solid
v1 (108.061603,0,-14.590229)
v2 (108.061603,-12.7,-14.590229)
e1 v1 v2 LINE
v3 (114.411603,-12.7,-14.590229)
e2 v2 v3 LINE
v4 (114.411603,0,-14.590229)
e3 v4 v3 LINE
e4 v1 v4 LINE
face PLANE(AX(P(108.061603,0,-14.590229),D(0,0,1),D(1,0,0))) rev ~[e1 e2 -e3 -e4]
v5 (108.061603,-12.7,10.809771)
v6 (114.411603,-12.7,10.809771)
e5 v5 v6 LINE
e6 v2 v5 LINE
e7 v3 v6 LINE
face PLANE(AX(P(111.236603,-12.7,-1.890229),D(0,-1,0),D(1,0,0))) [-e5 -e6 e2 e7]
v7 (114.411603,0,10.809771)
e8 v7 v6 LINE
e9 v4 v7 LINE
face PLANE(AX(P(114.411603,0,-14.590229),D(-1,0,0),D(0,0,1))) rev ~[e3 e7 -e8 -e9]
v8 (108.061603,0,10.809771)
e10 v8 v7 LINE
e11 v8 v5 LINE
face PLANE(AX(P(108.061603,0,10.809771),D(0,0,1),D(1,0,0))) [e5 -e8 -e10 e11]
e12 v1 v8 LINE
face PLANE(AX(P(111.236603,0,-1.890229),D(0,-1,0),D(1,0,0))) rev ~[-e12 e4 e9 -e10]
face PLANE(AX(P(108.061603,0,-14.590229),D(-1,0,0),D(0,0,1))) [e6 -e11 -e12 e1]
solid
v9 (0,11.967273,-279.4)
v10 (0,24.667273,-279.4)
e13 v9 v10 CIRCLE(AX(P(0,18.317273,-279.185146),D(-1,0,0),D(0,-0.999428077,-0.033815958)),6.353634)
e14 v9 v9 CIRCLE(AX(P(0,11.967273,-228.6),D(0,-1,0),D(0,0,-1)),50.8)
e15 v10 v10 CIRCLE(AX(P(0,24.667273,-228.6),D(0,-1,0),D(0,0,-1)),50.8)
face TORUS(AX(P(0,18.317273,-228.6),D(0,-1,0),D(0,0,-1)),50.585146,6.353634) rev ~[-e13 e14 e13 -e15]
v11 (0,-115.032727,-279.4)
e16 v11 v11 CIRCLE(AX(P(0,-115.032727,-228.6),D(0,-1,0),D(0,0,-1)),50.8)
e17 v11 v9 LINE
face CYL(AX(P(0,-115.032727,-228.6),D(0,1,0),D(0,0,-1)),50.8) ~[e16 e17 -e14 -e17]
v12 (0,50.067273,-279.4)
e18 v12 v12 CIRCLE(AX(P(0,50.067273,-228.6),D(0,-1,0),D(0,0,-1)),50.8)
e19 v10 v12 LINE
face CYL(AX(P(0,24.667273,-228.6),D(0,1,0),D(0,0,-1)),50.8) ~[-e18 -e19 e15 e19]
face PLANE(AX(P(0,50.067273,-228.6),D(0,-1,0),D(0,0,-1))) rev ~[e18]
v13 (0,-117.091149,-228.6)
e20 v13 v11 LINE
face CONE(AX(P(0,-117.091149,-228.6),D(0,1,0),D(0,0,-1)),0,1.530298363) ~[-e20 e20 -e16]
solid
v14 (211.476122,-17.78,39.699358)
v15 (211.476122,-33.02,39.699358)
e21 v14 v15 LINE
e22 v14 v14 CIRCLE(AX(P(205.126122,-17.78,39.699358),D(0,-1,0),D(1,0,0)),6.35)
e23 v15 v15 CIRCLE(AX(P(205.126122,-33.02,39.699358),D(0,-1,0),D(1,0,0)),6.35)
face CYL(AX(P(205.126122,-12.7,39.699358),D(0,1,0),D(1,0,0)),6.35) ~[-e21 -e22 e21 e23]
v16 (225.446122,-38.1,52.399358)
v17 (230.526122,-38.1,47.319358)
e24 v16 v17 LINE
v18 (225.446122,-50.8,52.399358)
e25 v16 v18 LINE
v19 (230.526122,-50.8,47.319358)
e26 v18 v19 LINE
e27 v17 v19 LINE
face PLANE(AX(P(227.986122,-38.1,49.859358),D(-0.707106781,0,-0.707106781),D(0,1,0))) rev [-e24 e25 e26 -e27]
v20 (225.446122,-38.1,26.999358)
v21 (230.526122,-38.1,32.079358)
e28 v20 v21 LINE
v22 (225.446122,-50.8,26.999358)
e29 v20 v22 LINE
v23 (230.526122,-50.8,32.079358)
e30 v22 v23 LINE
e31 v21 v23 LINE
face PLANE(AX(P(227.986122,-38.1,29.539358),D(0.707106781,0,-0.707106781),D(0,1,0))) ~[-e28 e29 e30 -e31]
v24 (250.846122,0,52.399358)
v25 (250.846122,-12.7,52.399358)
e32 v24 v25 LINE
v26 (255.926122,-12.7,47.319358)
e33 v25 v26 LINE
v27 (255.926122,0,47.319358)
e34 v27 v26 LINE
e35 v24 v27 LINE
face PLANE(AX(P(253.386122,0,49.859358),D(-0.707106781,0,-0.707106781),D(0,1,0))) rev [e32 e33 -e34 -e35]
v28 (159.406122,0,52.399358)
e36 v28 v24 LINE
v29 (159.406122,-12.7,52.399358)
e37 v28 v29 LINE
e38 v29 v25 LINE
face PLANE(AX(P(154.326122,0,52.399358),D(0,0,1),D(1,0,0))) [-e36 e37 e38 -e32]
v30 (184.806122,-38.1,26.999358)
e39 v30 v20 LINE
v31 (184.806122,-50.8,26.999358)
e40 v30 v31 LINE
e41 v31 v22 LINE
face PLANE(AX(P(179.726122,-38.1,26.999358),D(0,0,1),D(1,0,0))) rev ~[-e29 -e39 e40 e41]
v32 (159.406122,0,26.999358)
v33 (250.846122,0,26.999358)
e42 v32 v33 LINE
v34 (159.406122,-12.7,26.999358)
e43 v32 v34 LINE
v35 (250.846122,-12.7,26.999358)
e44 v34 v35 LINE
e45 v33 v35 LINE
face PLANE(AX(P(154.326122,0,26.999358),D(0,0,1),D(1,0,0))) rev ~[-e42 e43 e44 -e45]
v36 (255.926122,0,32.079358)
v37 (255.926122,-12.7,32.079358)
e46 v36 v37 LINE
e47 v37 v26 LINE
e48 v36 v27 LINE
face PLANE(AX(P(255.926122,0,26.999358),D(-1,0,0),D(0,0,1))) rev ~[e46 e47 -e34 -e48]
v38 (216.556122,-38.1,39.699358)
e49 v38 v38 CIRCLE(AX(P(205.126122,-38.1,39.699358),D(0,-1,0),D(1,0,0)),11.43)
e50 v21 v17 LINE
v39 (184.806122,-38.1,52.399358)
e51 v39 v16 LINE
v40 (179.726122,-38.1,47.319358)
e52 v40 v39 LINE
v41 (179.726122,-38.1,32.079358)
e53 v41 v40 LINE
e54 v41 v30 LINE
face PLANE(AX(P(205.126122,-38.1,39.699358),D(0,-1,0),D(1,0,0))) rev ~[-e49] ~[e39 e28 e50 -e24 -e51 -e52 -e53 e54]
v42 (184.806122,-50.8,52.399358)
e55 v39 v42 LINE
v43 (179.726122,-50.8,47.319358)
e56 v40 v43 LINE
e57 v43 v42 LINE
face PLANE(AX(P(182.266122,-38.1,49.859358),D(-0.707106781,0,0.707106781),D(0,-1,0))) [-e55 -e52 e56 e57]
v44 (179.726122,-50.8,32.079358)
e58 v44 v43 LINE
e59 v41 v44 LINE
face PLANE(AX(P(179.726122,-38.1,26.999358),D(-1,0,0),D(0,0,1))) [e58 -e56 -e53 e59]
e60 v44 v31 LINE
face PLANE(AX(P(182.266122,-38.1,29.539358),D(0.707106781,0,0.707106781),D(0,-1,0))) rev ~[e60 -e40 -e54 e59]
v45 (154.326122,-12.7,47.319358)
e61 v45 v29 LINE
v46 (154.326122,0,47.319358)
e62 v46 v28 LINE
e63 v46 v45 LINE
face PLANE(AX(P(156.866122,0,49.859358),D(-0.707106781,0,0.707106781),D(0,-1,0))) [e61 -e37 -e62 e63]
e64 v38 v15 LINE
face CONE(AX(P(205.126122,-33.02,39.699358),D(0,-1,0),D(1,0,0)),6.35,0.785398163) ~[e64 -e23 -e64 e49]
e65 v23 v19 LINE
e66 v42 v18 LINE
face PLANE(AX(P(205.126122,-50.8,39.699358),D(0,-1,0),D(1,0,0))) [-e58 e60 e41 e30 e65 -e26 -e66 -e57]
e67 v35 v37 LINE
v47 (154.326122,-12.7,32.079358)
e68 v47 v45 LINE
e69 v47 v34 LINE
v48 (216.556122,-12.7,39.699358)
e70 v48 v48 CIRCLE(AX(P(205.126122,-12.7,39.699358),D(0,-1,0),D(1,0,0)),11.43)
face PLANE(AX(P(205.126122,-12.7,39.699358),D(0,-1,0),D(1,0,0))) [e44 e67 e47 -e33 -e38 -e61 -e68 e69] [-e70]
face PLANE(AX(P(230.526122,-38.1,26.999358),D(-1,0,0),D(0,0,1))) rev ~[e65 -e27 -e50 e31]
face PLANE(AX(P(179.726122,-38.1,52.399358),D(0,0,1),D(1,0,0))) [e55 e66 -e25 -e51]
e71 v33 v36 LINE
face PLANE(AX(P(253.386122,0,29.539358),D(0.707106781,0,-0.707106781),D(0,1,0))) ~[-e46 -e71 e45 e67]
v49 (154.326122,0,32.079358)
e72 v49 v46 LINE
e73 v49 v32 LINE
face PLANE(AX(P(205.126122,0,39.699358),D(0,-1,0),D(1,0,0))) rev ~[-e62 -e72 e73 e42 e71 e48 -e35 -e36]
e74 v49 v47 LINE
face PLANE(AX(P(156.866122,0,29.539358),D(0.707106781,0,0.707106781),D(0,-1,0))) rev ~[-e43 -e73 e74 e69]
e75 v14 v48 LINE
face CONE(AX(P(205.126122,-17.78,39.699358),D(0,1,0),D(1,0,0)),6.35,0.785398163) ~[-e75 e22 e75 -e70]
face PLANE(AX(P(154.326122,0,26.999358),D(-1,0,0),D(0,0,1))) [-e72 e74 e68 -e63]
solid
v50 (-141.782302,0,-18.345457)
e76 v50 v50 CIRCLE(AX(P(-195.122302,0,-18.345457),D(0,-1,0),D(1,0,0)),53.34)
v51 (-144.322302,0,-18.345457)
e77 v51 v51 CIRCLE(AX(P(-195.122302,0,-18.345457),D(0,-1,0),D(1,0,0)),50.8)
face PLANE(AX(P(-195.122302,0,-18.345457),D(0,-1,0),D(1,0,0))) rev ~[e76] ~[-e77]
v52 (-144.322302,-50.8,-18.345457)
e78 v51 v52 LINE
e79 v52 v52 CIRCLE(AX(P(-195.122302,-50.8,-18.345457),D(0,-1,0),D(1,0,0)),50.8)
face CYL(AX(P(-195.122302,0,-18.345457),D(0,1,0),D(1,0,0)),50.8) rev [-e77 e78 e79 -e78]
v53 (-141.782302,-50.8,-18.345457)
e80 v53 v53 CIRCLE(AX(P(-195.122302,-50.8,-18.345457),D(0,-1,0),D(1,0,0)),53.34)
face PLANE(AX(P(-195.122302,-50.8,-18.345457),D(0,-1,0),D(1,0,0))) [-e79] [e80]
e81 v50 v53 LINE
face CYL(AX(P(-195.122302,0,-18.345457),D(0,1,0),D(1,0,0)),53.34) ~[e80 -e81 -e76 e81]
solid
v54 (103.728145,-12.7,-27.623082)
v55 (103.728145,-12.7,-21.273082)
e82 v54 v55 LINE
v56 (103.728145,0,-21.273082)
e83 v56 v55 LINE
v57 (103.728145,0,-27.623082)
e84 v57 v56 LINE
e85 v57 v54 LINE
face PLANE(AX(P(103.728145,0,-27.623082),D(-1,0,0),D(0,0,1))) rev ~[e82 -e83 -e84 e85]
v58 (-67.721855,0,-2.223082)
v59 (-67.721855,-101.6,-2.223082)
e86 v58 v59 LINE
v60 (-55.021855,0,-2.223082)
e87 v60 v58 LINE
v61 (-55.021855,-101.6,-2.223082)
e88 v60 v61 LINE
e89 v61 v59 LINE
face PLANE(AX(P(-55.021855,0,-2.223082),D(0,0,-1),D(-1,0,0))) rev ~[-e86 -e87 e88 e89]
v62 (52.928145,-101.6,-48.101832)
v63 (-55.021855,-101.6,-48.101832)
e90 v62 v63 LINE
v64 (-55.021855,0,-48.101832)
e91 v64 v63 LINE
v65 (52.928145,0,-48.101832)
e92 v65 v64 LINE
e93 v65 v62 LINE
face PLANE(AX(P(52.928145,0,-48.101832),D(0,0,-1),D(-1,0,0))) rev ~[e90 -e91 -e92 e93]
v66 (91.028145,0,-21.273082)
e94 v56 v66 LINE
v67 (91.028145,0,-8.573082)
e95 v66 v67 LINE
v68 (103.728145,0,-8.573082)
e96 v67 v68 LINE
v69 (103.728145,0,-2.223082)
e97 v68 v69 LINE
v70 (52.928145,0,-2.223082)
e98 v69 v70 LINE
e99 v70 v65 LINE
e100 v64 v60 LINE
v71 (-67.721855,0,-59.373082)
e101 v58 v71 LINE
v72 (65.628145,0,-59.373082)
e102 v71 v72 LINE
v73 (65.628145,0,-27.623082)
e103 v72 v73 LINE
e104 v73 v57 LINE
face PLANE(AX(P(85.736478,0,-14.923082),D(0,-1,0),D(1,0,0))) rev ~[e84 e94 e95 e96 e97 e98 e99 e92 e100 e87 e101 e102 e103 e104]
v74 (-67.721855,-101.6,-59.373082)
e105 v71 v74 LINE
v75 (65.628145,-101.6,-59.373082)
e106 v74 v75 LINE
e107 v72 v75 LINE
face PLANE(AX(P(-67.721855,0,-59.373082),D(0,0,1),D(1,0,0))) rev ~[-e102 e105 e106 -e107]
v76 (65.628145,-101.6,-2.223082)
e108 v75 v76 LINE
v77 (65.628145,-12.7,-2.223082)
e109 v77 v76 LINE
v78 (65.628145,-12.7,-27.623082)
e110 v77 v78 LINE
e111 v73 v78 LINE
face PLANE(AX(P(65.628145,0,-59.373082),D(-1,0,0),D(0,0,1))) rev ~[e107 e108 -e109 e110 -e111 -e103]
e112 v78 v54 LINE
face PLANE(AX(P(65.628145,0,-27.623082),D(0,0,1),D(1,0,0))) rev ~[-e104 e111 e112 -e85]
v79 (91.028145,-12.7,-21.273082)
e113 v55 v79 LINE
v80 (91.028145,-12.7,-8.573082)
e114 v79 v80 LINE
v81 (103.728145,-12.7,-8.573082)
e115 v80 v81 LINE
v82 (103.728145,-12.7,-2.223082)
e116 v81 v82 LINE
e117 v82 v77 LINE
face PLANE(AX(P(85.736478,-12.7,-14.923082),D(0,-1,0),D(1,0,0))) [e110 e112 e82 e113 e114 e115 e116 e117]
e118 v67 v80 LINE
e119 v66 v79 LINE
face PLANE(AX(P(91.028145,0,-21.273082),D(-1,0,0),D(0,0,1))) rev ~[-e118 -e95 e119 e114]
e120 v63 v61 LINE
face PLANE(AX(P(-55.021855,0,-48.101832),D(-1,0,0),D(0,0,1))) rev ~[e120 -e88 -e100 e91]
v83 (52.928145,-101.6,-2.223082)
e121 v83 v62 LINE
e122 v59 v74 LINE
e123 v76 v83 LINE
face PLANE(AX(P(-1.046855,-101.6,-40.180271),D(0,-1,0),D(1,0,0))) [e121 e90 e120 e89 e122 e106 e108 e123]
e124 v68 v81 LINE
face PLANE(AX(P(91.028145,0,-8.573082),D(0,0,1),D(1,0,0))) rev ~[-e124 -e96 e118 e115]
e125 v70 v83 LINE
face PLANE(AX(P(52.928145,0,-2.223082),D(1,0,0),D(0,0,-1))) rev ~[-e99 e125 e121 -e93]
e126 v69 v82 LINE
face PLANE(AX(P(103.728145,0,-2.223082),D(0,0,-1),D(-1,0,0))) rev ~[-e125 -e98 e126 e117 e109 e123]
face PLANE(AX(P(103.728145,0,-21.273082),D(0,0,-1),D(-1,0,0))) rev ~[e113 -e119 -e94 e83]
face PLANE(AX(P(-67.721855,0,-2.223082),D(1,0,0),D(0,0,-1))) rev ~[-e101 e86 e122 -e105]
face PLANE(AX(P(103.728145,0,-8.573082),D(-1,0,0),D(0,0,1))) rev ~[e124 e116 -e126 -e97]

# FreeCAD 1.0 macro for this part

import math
import FreeCAD as App
import Part
import Sketcher
Q = App.Units.Quantity


def edges_at(feature, points):
    """Names of the edges that pass closest to the given points."""
    edges = feature.Shape.Edges
    near = lambda p: min(range(len(edges)), key=lambda i: edges[i].distToShape(Part.Vertex(*p))[0])
    return sorted({f"Edge{near(p) + 1}" for p in points})


def add_polygon(sketch, points):
    """Adds a closed chain of lines whose ends are joined by coincident constraints."""
    first, n = sketch.GeometryCount, len(points)
    for a, b in zip(points, points[1:] + points[:1]):
        sketch.addGeometry(Part.LineSegment(App.Vector(*a, 0), App.Vector(*b, 0)), False)
    for i in range(n):
        sketch.addConstraint(Sketcher.Constraint("Coincident", first + i, 2, first + (i + 1) % n, 1))

doc = App.newDocument("Part")
body = doc.addObject("PartDesign::Body", "Body")

# Sketch on XZ plane
sketch1 = body.newObject("Sketcher::SketchObject", "Sketch")
sketch1.AttachmentSupport = (doc.getObject("XZ_Plane"), [""])
sketch1.MapMode = "FlatFace"
add_polygon(sketch1, [(-55, -48), (-55, -2), (-68, -2), (-68, -59), (66, -59), (66, -2), (53, -2), (53, -48)])  # lines 0-7
sketch1.addConstraint([
    Sketcher.Constraint("Vertical", 0),
    Sketcher.Constraint("Horizontal", 1),
    Sketcher.Constraint("Vertical", 2),
    Sketcher.Constraint("Horizontal", 3),
    Sketcher.Constraint("Vertical", 4),
    Sketcher.Constraint("Horizontal", 5),
    Sketcher.Constraint("Vertical", 6),
    Sketcher.Constraint("Horizontal", 7),
    Sketcher.Constraint("Horizontal", 1, 2, 4, 2),
    Sketcher.Constraint("Equal", 1, 5),
    Sketcher.Constraint("DistanceX", 1, 2, 1, 1, Q("0.5 in")),
    Sketcher.Constraint("DistanceX", 3, 1, 3, 2, Q("5.25 in")),
    Sketcher.Constraint("DistanceY", 2, 2, 2, 1, Q("2.25 in")),
    Sketcher.Constraint("DistanceY", 0, 1, 0, 2, Q("45.87875 mm")),
    Sketcher.Constraint("DistanceY", 0, 2, -1, 1, Q("2.223082 mm")),
    Sketcher.Constraint("DistanceX", 0, 2, -1, 1, Q("55.021855 mm")),
])
pad1 = body.newObject("PartDesign::Pad", "Pad")
pad1.Profile = sketch1
pad1.Length = Q("4 in")

# Sketch on XZ plane
sketch2 = body.newObject("Sketcher::SketchObject", "Sketch001")
sketch2.AttachmentSupport = (doc.getObject("XZ_Plane"), [""])
sketch2.MapMode = "FlatFace"
add_polygon(sketch2, [(104, -2), (66, -2), (66, -28), (104, -28), (104, -21), (91, -21), (91, -9), (104, -9)])  # lines 0-7
sketch2.addConstraint([
    Sketcher.Constraint("Horizontal", 0),
    Sketcher.Constraint("Vertical", 1),
    Sketcher.Constraint("Horizontal", 2),
    Sketcher.Constraint("Vertical", 3),
    Sketcher.Constraint("Horizontal", 4),
    Sketcher.Constraint("Vertical", 5),
    Sketcher.Constraint("Horizontal", 6),
    Sketcher.Constraint("Vertical", 7),
    Sketcher.Constraint("Vertical", 3, 2, 6, 2),
    Sketcher.Constraint("Equal", 6, 5),
    Sketcher.Constraint("Equal", 3, 7),
    Sketcher.Constraint("DistanceY", 1, 2, 1, 1, Q("1 in")),
    Sketcher.Constraint("DistanceX", 0, 2, 0, 1, Q("1.5 in")),
    Sketcher.Constraint("DistanceX", 4, 2, 4, 1, Q("0.5 in")),
    Sketcher.Constraint("DistanceY", 0, 2, -1, 1, Q("2.223082 mm")),
    Sketcher.Constraint("DistanceX", -1, 1, 0, 2, Q("65.628145 mm")),
])
pad2 = body.newObject("PartDesign::Pad", "Pad001")
pad2.Profile = sketch2
pad2.Length = Q("0.5 in")
body2 = doc.addObject("PartDesign::Body", "Body001")

# Sketch on XZ plane
sketch3 = body2.newObject("Sketcher::SketchObject", "Sketch002")
sketch3.AttachmentSupport = (doc.getObject("XZ_Plane001"), [""])
sketch3.MapMode = "FlatFace"
sketch3.addGeometry([
    Part.Circle(App.Vector(-195, -18, 0), App.Vector(0, 0, 1), 53),
    Part.Circle(App.Vector(-195, -18, 0), App.Vector(0, 0, 1), 51),
], False)
sketch3.addConstraint([
    Sketcher.Constraint("Coincident", 1, 3, 0, 3),
    Sketcher.Constraint("Diameter", 1, Q("4 in")),
    Sketcher.Constraint("Diameter", 0, Q("4.2 in")),
    Sketcher.Constraint("DistanceX", 0, 3, -1, 1, Q("195.122302 mm")),
    Sketcher.Constraint("DistanceY", 0, 3, -1, 1, Q("18.345457 mm")),
])
pad3 = body2.newObject("PartDesign::Pad", "Pad002")
pad3.Profile = sketch3
pad3.Length = Q("2 in")
body3 = doc.addObject("PartDesign::Body", "Body002")

# Sketch on XZ plane
sketch4 = body3.newObject("Sketcher::SketchObject", "Sketch003")
sketch4.AttachmentSupport = (doc.getObject("XZ_Plane002"), [""])
sketch4.MapMode = "FlatFace"
add_polygon(sketch4, [(154, 52), (154, 27), (256, 27), (256, 52)])  # lines 0-3
sketch4.addConstraint([
    Sketcher.Constraint("Vertical", 0),
    Sketcher.Constraint("Horizontal", 1),
    Sketcher.Constraint("Vertical", 2),
    Sketcher.Constraint("Horizontal", 3),
    Sketcher.Constraint("DistanceX", 1, 1, 1, 2, Q("4 in")),
    Sketcher.Constraint("DistanceY", 0, 2, 0, 1, Q("1 in")),
    Sketcher.Constraint("DistanceX", -1, 1, 0, 2, Q("154.326122 mm")),
    Sketcher.Constraint("DistanceY", -1, 1, 0, 2, Q("26.999358 mm")),
])
pad4 = body3.newObject("PartDesign::Pad", "Pad003")
pad4.Profile = sketch4
pad4.Length = Q("0.5 in")

# Sketch on XZ plane
sketch5 = body3.newObject("Sketcher::SketchObject", "Sketch004")
sketch5.AttachmentSupport = (doc.getObject("XZ_Plane002"), [""])
sketch5.MapMode = "FlatFace"
sketch5.AttachmentOffset = App.Placement(App.Vector(0, 0, 0.5 * 25.4), App.Rotation())
sketch5.addGeometry(Part.Circle(App.Vector(205, 40, 0), App.Vector(0, 0, 1), 6), False)
sketch5.addConstraint([
    Sketcher.Constraint("Diameter", 0, Q("0.5 in")),
    Sketcher.Constraint("DistanceX", -1, 1, 0, 3, Q("205.126122 mm")),
    Sketcher.Constraint("DistanceY", -1, 1, 0, 3, Q("39.699358 mm")),
])
pad5 = body3.newObject("PartDesign::Pad", "Pad004")
pad5.Profile = sketch5
pad5.Length = Q("1 in")

# Sketch on XZ plane
sketch6 = body3.newObject("Sketcher::SketchObject", "Sketch005")
sketch6.AttachmentSupport = (doc.getObject("XZ_Plane002"), [""])
sketch6.MapMode = "FlatFace"
sketch6.AttachmentOffset = App.Placement(App.Vector(0, 0, 1.5 * 25.4), App.Rotation())
add_polygon(sketch6, [(180, 52), (180, 27), (231, 27), (231, 52)])  # lines 0-3
sketch6.addConstraint([
    Sketcher.Constraint("Vertical", 0),
    Sketcher.Constraint("Horizontal", 1),
    Sketcher.Constraint("Vertical", 2),
    Sketcher.Constraint("Horizontal", 3),
    Sketcher.Constraint("DistanceX", 1, 1, 1, 2, Q("2 in")),
    Sketcher.Constraint("DistanceY", 0, 2, 0, 1, Q("1 in")),
    Sketcher.Constraint("DistanceX", -1, 1, 0, 2, Q("179.726122 mm")),
    Sketcher.Constraint("DistanceY", -1, 1, 0, 2, Q("26.999358 mm")),
])
pad6 = body3.newObject("PartDesign::Pad", "Pad005")
pad6.Profile = sketch6
pad6.Length = Q("0.5 in")
doc.recompute()

chamfer = body3.newObject("PartDesign::Chamfer", "Chamfer")
chamfer.Base = (pad6, edges_at(pad6, [
    (154.326, -6.35, 52.399),
    (154.326, -6.35, 26.999),
    (179.726, -44.45, 26.999),
    (179.726, -44.45, 52.399),
    (230.526, -44.45, 52.399),
    (255.926, -6.35, 52.399),
    (255.926, -6.35, 26.999),
    (230.526, -44.45, 26.999),
    (198.776, -12.7, 39.699),
    (198.776, -38.1, 39.699),
]))
chamfer.Size = Q("0.2 in")
body4 = doc.addObject("PartDesign::Body", "Body003")

# Sketch on XZ plane
sketch7 = body4.newObject("Sketcher::SketchObject", "Sketch006")
sketch7.AttachmentSupport = (doc.getObject("XZ_Plane003"), [""])
sketch7.MapMode = "FlatFace"
add_polygon(sketch7, [(108, 11), (108, -15), (114, -15), (114, 11)])  # lines 0-3
sketch7.addConstraint([
    Sketcher.Constraint("Vertical", 0),
    Sketcher.Constraint("Horizontal", 1),
    Sketcher.Constraint("Vertical", 2),
    Sketcher.Constraint("Horizontal", 3),
    Sketcher.Constraint("DistanceY", 0, 2, 0, 1, Q("1 in")),
    Sketcher.Constraint("DistanceX", 1, 1, 1, 2, Q("0.25 in")),
    Sketcher.Constraint("DistanceY", 0, 2, -1, 1, Q("14.590229 mm")),
    Sketcher.Constraint("DistanceX", -1, 1, 0, 2, Q("108.061603 mm")),
])
pad7 = body4.newObject("PartDesign::Pad", "Pad006")
pad7.Profile = sketch7
pad7.Length = Q("0.5 in")
body5 = doc.addObject("PartDesign::Body", "Body004")

# Sketch on YZ plane
sketch8 = body5.newObject("Sketcher::SketchObject", "Sketch007")
sketch8.AttachmentSupport = (doc.getObject("YZ_Plane004"), [""])
sketch8.MapMode = "FlatFace"
sketch8.addGeometry([
    Part.LineSegment(App.Vector(-117, -229, 0), App.Vector(-115, -279, 0)),  # 0
    Part.LineSegment(App.Vector(-115, -279, 0), App.Vector(12, -279, 0)),  # 1
    Part.ArcOfCircle(Part.Circle(App.Vector(18, -279, 0), App.Vector(0, 0, 1), 6), math.radians(-2), math.radians(182)),  # 2
    Part.LineSegment(App.Vector(25, -279, 0), App.Vector(50, -279, 0)),  # 3
    Part.LineSegment(App.Vector(50, -279, 0), App.Vector(50, -229, 0)),  # 4
    Part.LineSegment(App.Vector(50, -229, 0), App.Vector(-117, -229, 0)),  # 5
], False)
sketch8.addGeometry(Part.LineSegment(App.Vector(50, -229, 0), App.Vector(-117, -229, 0)), True)  # axis
sketch8.addConstraint([
    Sketcher.Constraint("Coincident", 0, 2, 1, 1),
    Sketcher.Constraint("Coincident", 1, 2, 2, 2),
    Sketcher.Constraint("Coincident", 2, 1, 3, 1),
    Sketcher.Constraint("Coincident", 3, 2, 4, 1),
    Sketcher.Constraint("Coincident", 4, 2, 5, 1),
    Sketcher.Constraint("Coincident", 5, 2, 0, 1),
    Sketcher.Constraint("Horizontal", 1),
    Sketcher.Constraint("Horizontal", 3),
    Sketcher.Constraint("Vertical", 4),
    Sketcher.Constraint("Horizontal", 5),
    Sketcher.Constraint("Horizontal", 6),
    Sketcher.Constraint("Coincident", 6, 1, 4, 2),
    Sketcher.Constraint("Horizontal", 1, 2, 2, 1),
    Sketcher.Constraint("Equal", 5, 6),
    Sketcher.Constraint("DistanceX", 1, 1, 1, 2, Q("5 in")),
    Sketcher.Constraint("DistanceX", 3, 1, 3, 2, Q("1 in")),
    Sketcher.Constraint("DistanceY", 4, 1, 4, 2, Q("2 in")),
    Sketcher.Constraint("DistanceY", 0, 2, -1, 1, Q("11 in")),
    Sketcher.Constraint("DistanceX", 1, 2, 2, 1, Q("0.5 in")),
    Sketcher.Constraint("Radius", 2, Q("6.353634 mm")),
    Sketcher.Constraint("DistanceX", 5, 2, 5, 1, Q("167.158422 mm")),
    Sketcher.Constraint("DistanceX", 5, 2, -1, 1, Q("117.091149 mm")),
])
revolution = body5.newObject("PartDesign::Revolution", "Revolution")
revolution.Profile = sketch8
revolution.ReferenceAxis = (sketch8, ["Axis0"])
revolution.Angle = 360

doc.recompute()
